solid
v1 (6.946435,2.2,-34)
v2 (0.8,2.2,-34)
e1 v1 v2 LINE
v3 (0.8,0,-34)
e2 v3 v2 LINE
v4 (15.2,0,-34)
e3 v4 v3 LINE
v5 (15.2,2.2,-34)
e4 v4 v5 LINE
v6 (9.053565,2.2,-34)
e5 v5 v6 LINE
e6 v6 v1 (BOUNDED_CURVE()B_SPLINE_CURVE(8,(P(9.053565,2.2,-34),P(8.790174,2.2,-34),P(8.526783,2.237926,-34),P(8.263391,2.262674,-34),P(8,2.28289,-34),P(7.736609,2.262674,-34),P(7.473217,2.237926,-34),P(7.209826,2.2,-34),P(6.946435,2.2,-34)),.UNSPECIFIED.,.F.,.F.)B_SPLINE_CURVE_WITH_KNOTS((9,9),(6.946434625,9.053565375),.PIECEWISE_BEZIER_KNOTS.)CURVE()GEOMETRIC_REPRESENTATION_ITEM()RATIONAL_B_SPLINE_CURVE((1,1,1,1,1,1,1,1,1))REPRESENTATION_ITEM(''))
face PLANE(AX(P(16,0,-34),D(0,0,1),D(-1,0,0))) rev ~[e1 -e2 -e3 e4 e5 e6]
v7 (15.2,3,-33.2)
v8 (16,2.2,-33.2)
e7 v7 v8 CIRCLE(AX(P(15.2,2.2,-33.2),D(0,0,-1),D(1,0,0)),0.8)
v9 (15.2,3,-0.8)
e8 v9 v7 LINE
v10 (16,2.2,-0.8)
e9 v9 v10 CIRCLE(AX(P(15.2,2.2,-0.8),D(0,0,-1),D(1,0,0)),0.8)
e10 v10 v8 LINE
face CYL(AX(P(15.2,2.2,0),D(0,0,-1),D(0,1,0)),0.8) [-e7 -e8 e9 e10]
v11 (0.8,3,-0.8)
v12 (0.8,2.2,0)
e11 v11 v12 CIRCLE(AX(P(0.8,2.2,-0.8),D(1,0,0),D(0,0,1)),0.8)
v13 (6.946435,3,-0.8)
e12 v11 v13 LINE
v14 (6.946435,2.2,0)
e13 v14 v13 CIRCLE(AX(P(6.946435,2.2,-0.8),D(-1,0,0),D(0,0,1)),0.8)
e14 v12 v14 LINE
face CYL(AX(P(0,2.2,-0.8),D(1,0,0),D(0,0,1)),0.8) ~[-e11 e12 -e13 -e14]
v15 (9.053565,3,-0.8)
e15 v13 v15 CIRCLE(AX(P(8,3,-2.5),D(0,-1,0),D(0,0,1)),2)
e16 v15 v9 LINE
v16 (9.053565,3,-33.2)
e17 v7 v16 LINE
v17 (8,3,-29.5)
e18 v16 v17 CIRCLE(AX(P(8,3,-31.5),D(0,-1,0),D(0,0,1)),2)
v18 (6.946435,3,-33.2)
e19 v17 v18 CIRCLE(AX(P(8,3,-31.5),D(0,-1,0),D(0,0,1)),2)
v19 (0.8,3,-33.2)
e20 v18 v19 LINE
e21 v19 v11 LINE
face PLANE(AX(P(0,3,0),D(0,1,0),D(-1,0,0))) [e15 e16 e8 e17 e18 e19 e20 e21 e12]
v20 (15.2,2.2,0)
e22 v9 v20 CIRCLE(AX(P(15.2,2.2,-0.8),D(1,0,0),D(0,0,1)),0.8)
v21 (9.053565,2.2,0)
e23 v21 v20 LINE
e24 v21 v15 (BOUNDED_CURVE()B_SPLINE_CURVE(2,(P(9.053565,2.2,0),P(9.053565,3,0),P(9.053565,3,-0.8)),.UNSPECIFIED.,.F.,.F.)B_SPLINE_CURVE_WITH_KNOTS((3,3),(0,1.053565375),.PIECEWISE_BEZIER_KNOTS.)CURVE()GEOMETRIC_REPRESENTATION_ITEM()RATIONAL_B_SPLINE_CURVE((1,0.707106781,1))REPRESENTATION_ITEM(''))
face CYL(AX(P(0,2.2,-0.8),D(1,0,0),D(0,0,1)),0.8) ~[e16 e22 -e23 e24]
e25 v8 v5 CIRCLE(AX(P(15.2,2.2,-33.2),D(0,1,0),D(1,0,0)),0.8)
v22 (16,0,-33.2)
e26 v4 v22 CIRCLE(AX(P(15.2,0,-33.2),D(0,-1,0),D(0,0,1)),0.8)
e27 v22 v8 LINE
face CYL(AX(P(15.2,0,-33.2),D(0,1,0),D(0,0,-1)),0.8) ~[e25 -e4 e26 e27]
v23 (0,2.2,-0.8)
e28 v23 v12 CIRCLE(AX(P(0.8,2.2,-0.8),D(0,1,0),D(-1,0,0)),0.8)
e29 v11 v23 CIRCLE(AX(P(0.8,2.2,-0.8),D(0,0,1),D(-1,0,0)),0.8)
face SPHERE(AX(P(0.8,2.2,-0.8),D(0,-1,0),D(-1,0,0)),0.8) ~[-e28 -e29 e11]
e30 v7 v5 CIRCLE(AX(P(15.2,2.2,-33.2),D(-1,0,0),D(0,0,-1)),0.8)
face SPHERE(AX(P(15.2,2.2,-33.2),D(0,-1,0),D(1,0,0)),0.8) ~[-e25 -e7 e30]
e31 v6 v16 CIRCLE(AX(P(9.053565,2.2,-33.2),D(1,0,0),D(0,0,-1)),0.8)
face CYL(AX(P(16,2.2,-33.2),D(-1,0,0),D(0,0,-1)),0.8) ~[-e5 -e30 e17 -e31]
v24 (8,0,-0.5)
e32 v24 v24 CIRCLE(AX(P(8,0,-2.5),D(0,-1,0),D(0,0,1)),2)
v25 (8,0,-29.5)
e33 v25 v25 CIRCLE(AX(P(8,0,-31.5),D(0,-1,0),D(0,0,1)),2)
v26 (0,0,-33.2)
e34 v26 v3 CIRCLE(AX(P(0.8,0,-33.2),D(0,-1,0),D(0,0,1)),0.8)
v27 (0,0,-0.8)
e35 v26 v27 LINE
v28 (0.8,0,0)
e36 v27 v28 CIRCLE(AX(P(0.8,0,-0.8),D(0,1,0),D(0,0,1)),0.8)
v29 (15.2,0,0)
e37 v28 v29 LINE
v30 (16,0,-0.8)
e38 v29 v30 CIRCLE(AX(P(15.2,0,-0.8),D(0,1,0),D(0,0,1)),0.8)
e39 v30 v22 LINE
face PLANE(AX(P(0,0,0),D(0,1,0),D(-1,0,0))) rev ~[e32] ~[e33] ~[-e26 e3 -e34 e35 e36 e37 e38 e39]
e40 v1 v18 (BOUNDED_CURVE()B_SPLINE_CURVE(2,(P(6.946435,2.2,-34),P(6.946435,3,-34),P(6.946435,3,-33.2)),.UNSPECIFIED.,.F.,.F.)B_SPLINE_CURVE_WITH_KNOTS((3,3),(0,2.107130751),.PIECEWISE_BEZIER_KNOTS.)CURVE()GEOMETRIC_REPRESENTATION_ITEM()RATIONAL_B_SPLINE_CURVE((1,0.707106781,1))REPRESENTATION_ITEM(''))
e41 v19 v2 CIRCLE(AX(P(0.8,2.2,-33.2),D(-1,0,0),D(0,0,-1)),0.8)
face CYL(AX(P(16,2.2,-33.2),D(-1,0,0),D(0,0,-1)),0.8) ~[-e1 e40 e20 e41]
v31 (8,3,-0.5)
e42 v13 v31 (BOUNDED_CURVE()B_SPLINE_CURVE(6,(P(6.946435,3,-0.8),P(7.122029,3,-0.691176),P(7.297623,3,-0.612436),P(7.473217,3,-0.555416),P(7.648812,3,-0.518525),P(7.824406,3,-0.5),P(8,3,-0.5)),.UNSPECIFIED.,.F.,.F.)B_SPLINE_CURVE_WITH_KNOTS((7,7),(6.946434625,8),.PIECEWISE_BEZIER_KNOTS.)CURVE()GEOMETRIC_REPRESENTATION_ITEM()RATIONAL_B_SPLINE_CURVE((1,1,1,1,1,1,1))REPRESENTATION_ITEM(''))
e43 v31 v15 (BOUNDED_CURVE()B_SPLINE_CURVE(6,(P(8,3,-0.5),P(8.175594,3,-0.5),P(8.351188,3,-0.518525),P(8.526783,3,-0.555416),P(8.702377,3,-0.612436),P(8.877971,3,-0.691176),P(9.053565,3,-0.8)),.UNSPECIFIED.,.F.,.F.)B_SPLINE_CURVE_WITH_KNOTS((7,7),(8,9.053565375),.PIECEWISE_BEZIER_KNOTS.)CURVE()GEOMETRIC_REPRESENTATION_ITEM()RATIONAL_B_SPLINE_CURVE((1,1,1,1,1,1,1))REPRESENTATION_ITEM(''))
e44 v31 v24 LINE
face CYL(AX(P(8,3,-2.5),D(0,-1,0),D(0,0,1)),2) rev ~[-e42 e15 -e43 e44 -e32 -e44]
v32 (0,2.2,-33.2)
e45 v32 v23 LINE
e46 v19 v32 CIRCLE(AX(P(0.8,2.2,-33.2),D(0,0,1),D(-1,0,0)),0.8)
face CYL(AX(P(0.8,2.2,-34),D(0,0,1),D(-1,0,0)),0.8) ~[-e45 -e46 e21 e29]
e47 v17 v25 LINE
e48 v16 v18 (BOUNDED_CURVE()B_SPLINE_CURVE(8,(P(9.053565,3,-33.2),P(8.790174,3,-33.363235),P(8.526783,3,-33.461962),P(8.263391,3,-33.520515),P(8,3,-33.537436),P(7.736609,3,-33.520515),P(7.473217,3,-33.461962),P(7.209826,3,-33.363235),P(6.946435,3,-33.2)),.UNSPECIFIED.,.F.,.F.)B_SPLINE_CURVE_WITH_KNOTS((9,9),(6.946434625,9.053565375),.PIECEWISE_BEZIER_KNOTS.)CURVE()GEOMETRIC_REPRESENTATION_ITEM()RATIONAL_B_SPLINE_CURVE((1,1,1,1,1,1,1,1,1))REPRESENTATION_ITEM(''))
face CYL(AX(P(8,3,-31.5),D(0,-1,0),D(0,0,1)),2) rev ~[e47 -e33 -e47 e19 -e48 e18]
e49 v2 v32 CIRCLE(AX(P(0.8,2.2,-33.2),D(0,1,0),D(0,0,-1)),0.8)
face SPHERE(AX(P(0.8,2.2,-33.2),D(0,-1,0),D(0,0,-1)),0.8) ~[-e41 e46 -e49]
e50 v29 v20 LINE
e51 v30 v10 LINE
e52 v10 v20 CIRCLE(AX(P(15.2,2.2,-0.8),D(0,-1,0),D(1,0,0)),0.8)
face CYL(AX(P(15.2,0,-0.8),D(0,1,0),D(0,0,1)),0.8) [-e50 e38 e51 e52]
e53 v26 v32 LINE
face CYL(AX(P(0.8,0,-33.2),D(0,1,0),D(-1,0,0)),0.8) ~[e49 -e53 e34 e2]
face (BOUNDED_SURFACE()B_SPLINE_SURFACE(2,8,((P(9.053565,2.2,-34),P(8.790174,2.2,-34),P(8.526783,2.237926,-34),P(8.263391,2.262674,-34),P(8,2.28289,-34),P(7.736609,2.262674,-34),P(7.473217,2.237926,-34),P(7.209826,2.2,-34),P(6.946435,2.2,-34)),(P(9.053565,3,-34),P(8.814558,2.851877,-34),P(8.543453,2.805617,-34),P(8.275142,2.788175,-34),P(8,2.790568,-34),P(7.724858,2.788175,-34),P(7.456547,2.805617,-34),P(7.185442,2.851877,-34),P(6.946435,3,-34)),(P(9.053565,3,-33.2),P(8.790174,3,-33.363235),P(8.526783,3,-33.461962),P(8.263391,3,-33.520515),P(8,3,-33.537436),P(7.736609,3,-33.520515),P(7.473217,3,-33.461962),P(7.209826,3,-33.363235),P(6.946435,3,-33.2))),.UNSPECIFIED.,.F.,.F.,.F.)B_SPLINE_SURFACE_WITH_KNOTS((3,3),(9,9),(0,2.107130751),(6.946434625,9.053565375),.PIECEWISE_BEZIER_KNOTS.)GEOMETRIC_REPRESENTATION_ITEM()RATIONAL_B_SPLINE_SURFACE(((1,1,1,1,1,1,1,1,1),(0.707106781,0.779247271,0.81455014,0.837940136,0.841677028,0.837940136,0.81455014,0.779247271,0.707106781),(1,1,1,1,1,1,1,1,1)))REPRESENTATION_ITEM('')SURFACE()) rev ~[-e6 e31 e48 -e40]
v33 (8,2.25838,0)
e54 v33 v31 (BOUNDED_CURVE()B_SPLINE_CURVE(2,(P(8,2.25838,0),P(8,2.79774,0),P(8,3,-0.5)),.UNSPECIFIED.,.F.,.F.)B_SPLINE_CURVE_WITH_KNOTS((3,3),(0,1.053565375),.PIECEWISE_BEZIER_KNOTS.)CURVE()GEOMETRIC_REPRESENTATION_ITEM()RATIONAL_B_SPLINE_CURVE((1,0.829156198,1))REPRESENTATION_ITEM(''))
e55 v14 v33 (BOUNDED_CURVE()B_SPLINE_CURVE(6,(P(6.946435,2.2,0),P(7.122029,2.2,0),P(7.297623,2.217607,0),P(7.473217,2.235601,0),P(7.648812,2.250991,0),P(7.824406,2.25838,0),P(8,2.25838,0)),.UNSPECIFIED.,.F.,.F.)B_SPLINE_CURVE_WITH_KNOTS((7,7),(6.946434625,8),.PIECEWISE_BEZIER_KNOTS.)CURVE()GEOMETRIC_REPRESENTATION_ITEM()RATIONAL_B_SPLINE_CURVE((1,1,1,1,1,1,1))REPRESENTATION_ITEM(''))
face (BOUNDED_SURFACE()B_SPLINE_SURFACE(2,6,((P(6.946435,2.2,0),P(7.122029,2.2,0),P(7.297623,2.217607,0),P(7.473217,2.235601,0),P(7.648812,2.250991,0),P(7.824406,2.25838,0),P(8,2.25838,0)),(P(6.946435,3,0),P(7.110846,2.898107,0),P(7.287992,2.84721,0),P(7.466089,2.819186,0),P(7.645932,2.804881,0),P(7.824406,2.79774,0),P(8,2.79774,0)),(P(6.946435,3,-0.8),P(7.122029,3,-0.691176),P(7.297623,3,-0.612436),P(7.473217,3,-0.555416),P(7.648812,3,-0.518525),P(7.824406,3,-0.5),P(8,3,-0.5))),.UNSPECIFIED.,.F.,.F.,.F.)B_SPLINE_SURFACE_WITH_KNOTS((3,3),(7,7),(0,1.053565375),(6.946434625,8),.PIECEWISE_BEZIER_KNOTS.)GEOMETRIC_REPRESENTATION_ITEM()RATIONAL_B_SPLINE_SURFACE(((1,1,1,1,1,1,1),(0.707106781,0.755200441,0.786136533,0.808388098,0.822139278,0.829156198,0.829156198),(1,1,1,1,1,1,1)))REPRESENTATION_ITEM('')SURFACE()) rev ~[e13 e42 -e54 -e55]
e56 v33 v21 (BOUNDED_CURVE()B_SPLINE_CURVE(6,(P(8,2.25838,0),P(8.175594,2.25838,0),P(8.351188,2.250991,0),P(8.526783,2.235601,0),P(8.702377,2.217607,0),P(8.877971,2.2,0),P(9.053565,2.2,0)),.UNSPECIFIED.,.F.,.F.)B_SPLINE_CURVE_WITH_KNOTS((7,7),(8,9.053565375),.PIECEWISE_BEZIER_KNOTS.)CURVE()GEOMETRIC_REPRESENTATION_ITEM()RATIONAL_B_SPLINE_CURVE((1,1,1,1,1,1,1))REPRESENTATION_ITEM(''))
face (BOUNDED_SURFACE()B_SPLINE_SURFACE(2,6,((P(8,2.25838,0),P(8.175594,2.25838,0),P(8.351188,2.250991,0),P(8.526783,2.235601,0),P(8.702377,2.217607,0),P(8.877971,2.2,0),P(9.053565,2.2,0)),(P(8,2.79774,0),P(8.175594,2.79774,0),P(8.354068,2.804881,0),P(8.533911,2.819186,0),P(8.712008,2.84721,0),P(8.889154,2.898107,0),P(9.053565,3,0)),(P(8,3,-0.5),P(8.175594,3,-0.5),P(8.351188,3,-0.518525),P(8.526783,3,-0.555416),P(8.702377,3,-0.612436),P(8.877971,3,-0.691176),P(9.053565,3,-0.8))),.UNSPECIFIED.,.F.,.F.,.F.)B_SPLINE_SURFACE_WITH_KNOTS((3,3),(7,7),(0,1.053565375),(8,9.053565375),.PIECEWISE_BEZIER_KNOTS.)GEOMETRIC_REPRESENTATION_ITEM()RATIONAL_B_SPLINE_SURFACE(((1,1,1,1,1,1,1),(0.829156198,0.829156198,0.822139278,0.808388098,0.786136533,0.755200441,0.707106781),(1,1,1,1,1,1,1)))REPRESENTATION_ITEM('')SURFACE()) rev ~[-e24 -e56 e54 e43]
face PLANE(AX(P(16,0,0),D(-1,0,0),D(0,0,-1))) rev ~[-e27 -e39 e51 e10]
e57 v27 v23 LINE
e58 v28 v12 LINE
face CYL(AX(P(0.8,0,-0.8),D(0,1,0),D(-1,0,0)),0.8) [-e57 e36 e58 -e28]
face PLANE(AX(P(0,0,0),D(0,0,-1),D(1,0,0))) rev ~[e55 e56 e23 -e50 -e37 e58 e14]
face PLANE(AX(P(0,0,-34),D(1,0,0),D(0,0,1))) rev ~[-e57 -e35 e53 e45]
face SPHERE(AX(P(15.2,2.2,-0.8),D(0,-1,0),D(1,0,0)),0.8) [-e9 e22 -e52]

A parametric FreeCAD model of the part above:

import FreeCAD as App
import Part
import Sketcher
from FreeCAD import Vector
Q = App.Units.Quantity


def edges_at(feature, points):
    """Names of the edges that pass closest to the given points."""
    edges = feature.Shape.Edges
    near = lambda p: min(range(len(edges)), key=lambda i: edges[i].distToShape(Part.Vertex(*p))[0])
    return sorted({f"Edge{near(p) + 1}" for p in points})


def add_polygon(sketch, points):
    """Adds a closed chain of lines whose ends are joined by coincident constraints."""
    first, n = sketch.GeometryCount, len(points)
    for a, b in zip(points, points[1:] + points[:1]):
        sketch.addGeometry(Part.LineSegment(App.Vector(*a, 0), App.Vector(*b, 0)), False)
    for i in range(n):
        sketch.addConstraint(Sketcher.Constraint("Coincident", first + i, 2, first + (i + 1) % n, 1))

doc = App.newDocument("Part")
body = doc.addObject("PartDesign::Body", "Body")

sketch1 = body.newObject("Sketcher::SketchObject", "Sketch")
sketch1.AttachmentSupport = (doc.getObject("XZ_Plane"), [""])
sketch1.MapMode = "FlatFace"
add_polygon(sketch1, [(0, -34), (0, 0), (16, 0), (16, -34)])
sketch1.addConstraint(Sketcher.Constraint("Vertical", 0))
sketch1.addConstraint(Sketcher.Constraint("Horizontal", 1))
sketch1.addConstraint(Sketcher.Constraint("Vertical", 2))
sketch1.addConstraint(Sketcher.Constraint("Horizontal", 3))
sketch1.addConstraint(Sketcher.Constraint("Coincident", 0, 2, -1, 1))
sketch1.addConstraint(Sketcher.Constraint("DistanceX", 1, 1, 1, 2, Q("16 mm")))
sketch1.addConstraint(Sketcher.Constraint("DistanceY", 0, 1, 0, 2, Q("34 mm")))
pad1 = body.newObject("PartDesign::Pad", "Pad")
pad1.Profile = sketch1
pad1.Length = 3
pad1.Reversed = True

sketch2 = body.newObject("Sketcher::SketchObject", "Sketch001")
sketch2.AttachmentSupport = (doc.getObject("XZ_Plane"), [""])
sketch2.MapMode = "FlatFace"
sketch2.AttachmentOffset = App.Placement(Vector(0, 0, -3), App.Rotation())
sketch2.addGeometry(Part.Circle(Vector(8, -31.5, 0), Vector(0, 0, 1), 2), False)
sketch2.addGeometry(Part.Circle(Vector(8, -2.5, 0), Vector(0, 0, 1), 2), False)
sketch2.addConstraint(Sketcher.Constraint("Equal", 0, 1))
sketch2.addConstraint(Sketcher.Constraint("Vertical", 0, 3, 1, 3))
sketch2.addConstraint(Sketcher.Constraint("Diameter", 0, Q("4 mm")))
sketch2.addConstraint(Sketcher.Constraint("DistanceX", -1, 1, 0, 3, Q("8 mm")))
sketch2.addConstraint(Sketcher.Constraint("DistanceY", 0, 3, 1, 3, Q("29 mm")))
sketch2.addConstraint(Sketcher.Constraint("DistanceY", 0, 3, -1, 1, Q("31.5 mm")))
doc.recompute()
hole = body.newObject("PartDesign::Hole", "Hole")
hole.Profile = sketch2
hole.ThreadType = "None"
hole.Diameter = 4
hole.DepthType = "Dimension"
hole.Depth = 10
hole.DrillPoint = "Angled"
hole.DrillPointAngle = 118
hole.Reversed = True
doc.recompute()

fillet = body.newObject("PartDesign::Fillet", "Fillet")
fillet.Base = (hole, edges_at(hole, [
    (0, 1.5, 0),
    (0, 1.5, -34),
    (16, 1.5, 0),
    (16, 1.5, -34),
    (16, 3, -17),
    (8, 3, -34),
    (0, 3, -17),
    (8, 3, 0),
]))
fillet.Radius = 0.8

doc.recompute()
